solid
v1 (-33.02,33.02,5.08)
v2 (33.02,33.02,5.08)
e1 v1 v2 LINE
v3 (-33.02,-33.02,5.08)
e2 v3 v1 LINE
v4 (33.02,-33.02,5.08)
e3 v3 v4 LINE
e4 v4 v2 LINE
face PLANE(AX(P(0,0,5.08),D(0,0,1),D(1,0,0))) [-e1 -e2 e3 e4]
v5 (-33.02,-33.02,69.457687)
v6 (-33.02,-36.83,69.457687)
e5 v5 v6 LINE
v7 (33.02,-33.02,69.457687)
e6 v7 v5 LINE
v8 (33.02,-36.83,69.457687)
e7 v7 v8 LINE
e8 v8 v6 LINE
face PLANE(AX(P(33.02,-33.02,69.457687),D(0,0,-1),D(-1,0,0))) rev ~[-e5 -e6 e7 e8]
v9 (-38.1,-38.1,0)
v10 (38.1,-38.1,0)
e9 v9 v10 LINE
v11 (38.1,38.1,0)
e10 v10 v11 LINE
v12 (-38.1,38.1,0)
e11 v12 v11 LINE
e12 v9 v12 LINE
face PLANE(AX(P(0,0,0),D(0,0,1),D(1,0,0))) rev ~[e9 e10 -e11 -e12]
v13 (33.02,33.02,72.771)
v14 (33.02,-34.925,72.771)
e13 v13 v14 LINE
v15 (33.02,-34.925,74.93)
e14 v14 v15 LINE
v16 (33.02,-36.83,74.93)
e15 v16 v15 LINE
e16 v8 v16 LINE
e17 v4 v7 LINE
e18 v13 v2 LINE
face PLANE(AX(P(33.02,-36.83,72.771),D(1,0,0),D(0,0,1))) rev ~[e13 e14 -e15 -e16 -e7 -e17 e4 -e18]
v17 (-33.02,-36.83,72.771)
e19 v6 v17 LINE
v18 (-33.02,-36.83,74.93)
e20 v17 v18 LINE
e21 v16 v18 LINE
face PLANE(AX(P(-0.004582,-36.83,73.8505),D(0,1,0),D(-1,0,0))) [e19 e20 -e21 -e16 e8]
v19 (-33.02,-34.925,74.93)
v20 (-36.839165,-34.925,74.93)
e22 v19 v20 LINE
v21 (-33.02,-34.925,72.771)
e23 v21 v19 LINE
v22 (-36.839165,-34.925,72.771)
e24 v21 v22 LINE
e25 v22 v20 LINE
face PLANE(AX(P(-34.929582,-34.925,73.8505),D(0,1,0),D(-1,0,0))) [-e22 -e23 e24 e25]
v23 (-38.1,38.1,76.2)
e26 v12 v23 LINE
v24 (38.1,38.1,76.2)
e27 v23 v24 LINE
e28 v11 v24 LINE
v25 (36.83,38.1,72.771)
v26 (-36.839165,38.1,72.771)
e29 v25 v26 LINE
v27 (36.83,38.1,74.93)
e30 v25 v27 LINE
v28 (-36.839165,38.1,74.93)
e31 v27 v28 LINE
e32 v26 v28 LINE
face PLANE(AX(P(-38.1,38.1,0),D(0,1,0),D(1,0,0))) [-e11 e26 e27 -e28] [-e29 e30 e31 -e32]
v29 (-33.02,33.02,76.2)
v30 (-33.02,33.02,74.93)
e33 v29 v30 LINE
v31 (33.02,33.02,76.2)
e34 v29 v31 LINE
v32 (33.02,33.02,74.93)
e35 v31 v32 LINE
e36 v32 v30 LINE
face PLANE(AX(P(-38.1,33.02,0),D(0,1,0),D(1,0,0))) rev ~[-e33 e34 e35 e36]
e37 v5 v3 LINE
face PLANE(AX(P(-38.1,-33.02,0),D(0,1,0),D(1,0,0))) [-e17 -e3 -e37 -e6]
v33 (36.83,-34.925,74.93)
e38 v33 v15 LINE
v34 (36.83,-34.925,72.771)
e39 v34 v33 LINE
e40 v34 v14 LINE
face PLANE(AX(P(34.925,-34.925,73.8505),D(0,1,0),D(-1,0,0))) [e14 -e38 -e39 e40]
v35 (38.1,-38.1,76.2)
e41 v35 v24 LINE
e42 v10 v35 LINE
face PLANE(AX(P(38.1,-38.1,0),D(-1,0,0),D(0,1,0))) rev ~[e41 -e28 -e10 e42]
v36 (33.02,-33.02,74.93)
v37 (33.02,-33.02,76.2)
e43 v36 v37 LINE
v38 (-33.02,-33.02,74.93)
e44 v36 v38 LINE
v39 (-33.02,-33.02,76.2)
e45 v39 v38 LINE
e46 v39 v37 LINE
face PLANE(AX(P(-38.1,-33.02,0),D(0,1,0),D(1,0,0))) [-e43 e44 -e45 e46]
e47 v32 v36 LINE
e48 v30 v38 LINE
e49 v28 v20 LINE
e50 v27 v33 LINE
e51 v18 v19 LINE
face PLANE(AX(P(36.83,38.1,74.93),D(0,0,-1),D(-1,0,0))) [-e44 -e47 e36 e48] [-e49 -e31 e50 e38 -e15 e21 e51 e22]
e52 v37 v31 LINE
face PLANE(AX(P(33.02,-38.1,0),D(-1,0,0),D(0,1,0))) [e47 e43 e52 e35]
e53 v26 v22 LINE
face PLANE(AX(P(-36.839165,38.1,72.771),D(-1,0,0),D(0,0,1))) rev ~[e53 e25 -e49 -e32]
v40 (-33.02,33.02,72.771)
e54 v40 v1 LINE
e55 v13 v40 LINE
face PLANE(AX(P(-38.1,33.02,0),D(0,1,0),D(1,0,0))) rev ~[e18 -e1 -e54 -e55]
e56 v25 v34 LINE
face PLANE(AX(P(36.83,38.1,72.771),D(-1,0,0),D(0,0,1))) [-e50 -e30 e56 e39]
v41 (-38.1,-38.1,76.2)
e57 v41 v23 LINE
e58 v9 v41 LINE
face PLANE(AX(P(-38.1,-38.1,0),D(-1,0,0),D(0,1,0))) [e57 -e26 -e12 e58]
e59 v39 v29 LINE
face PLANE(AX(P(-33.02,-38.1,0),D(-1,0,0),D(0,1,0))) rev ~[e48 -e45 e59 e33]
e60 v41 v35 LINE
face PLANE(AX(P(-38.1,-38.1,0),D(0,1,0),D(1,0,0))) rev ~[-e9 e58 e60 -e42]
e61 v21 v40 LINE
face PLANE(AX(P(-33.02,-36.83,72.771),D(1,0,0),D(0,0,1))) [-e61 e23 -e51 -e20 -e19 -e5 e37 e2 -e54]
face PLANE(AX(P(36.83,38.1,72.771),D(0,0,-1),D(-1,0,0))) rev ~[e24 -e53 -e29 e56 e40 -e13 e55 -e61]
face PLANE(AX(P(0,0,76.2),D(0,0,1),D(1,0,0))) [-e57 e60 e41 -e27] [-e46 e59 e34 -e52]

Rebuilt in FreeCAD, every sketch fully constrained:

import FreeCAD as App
import Part
import Sketcher
from FreeCAD import Vector
Q = App.Units.Quantity


def faces_at(feature, points):
    """Names of the faces that lie closest to the given points."""
    faces = feature.Shape.Faces
    near = lambda p: min(range(len(faces)), key=lambda i: faces[i].distToShape(Part.Vertex(*p))[0])
    return sorted({f"Face{near(p) + 1}" for p in points})

doc = App.newDocument("Part")
params = doc.addObject("Spreadsheet::Sheet", "Params")
for row, (alias, value) in enumerate([
    ("sketch1_width", "3 in"),
    ("pad1_length", "3 in"),
    ("thickness_wall", "0.2 in"),
    ("sketch2_height", "0.085 in"),
    ("pocket1_length", "2.95 in"),
    ("sketch3_width", "2.6 in"),
    ("pocket2_length", "0.15 in"),
    ("sketch4_width", "0.15 in"),
    ("sketch4_height", "0.085 in"),
    ("pad2_length", "0.075 in"),
], start=1):
    params.set(f"A{row}", alias)
    params.set(f"B{row}", "=" + value)
    params.setAlias(f"B{row}", alias)

body = doc.addObject("PartDesign::Body", "Body")

sketch1 = doc.addObject("Sketcher::SketchObject", "Sketch")
body.addObject(sketch1)
sketch1.AttachmentSupport = (doc.XY_Plane, [""])
sketch1.MapMode = "FlatFace"
sketch1.addGeometry(Part.LineSegment(Vector(-38, 38, 0), Vector(-38, -38, 0)), False)
sketch1.addGeometry(Part.LineSegment(Vector(-38, -38, 0), Vector(38, -38, 0)), False)
sketch1.addGeometry(Part.LineSegment(Vector(38, -38, 0), Vector(38, 38, 0)), False)
sketch1.addGeometry(Part.LineSegment(Vector(38, 38, 0), Vector(-38, 38, 0)), False)
sketch1.addConstraint(Sketcher.Constraint("Coincident", 0, 2, 1, 1))
sketch1.addConstraint(Sketcher.Constraint("Coincident", 1, 2, 2, 1))
sketch1.addConstraint(Sketcher.Constraint("Coincident", 2, 2, 3, 1))
sketch1.addConstraint(Sketcher.Constraint("Coincident", 3, 2, 0, 1))
sketch1.addConstraint(Sketcher.Constraint("Vertical", 0))
sketch1.addConstraint(Sketcher.Constraint("Horizontal", 1))
sketch1.addConstraint(Sketcher.Constraint("Vertical", 2))
sketch1.addConstraint(Sketcher.Constraint("Horizontal", 3))
sketch1.addConstraint(Sketcher.Constraint("Symmetric", 0, 2, 2, 2, -1, 1))
sketch1.addConstraint(Sketcher.Constraint("Equal", 3, 0))
sketch1.addConstraint(Sketcher.Constraint("DistanceX", 1, 1, 1, 2, Q("3 in")))
sketch1.setExpression("Constraints[10]", "Params.sketch1_width")
pad1 = doc.addObject("PartDesign::Pad", "Pad")
body.addObject(pad1)
pad1.Profile = sketch1
pad1.setExpression("Length", "Params.pad1_length")
doc.recompute()

thickness = doc.addObject("PartDesign::Thickness", "Thickness")
body.addObject(thickness)
thickness.Base = (pad1, faces_at(pad1, [(0, 0, 76.2)]))
thickness.setExpression("Value", "Params.thickness_wall")
thickness.Reversed = True
thickness.Join = "Arc"

sketch2 = doc.addObject("Sketcher::SketchObject", "Sketch001")
body.addObject(sketch2)
sketch2.AttachmentSupport = (doc.XZ_Plane, [""])
sketch2.MapMode = "FlatFace"
sketch2.AttachmentOffset = App.Placement(Vector(0, 0, -1.5 * 25.4), App.Rotation())
sketch2.addGeometry(Part.LineSegment(Vector(36.8, 74.9, 0), Vector(36.8, 72.8, 0)), False)
sketch2.addGeometry(Part.LineSegment(Vector(36.8, 72.8, 0), Vector(-36.8, 72.8, 0)), False)
sketch2.addGeometry(Part.LineSegment(Vector(-36.8, 72.8, 0), Vector(-36.8, 74.9, 0)), False)
sketch2.addGeometry(Part.LineSegment(Vector(-36.8, 74.9, 0), Vector(36.8, 74.9, 0)), False)
sketch2.addConstraint(Sketcher.Constraint("Coincident", 0, 2, 1, 1))
sketch2.addConstraint(Sketcher.Constraint("Coincident", 1, 2, 2, 1))
sketch2.addConstraint(Sketcher.Constraint("Coincident", 2, 2, 3, 1))
sketch2.addConstraint(Sketcher.Constraint("Coincident", 3, 2, 0, 1))
sketch2.addConstraint(Sketcher.Constraint("Vertical", 0))
sketch2.addConstraint(Sketcher.Constraint("Horizontal", 1))
sketch2.addConstraint(Sketcher.Constraint("Vertical", 2))
sketch2.addConstraint(Sketcher.Constraint("Horizontal", 3))
sketch2.addConstraint(Sketcher.Constraint("DistanceY", 0, 2, 0, 1, Q("0.085 in")))
sketch2.addConstraint(Sketcher.Constraint("DistanceX", -1, 1, 0, 2, Q("1.45 in")))
sketch2.addConstraint(Sketcher.Constraint("DistanceY", -1, 1, 2, 2, Q("2.95 in")))
sketch2.addConstraint(Sketcher.Constraint("DistanceX", 1, 2, 1, 1, Q("73.669165 mm")))
sketch2.setExpression("Constraints[8]", "Params.sketch2_height")
pocket1 = doc.addObject("PartDesign::Pocket", "Pocket")
body.addObject(pocket1)
pocket1.Profile = sketch2
pocket1.setExpression("Length", "Params.pocket1_length")
pocket1.Reversed = True

sketch3 = doc.addObject("Sketcher::SketchObject", "Sketch002")
body.addObject(sketch3)
sketch3.AttachmentSupport = (doc.XZ_Plane, [""])
sketch3.MapMode = "FlatFace"
sketch3.AttachmentOffset = App.Placement(Vector(0, 0, 1.3 * 25.4), App.Rotation())
sketch3.addGeometry(Part.LineSegment(Vector(33, 75, 0), Vector(33, 69, 0)), False)
sketch3.addGeometry(Part.LineSegment(Vector(33, 69, 0), Vector(-33, 69, 0)), False)
sketch3.addGeometry(Part.LineSegment(Vector(-33, 69, 0), Vector(-33, 75, 0)), False)
sketch3.addGeometry(Part.LineSegment(Vector(-33, 75, 0), Vector(33, 75, 0)), False)
sketch3.addConstraint(Sketcher.Constraint("Coincident", 0, 2, 1, 1))
sketch3.addConstraint(Sketcher.Constraint("Coincident", 1, 2, 2, 1))
sketch3.addConstraint(Sketcher.Constraint("Coincident", 2, 2, 3, 1))
sketch3.addConstraint(Sketcher.Constraint("Coincident", 3, 2, 0, 1))
sketch3.addConstraint(Sketcher.Constraint("Vertical", 0))
sketch3.addConstraint(Sketcher.Constraint("Horizontal", 1))
sketch3.addConstraint(Sketcher.Constraint("Vertical", 2))
sketch3.addConstraint(Sketcher.Constraint("Horizontal", 3))
sketch3.addConstraint(Sketcher.Constraint("DistanceX", 1, 2, 1, 1, Q("2.6 in")))
sketch3.addConstraint(Sketcher.Constraint("DistanceX", -1, 1, 0, 2, Q("1.3 in")))
sketch3.addConstraint(Sketcher.Constraint("DistanceY", -1, 1, 2, 2, Q("74.8979 mm")))
sketch3.addConstraint(Sketcher.Constraint("DistanceY", 0, 2, 0, 1, Q("5.440213 mm")))
sketch3.setExpression("Constraints[8]", "Params.sketch3_width")
pocket2 = doc.addObject("PartDesign::Pocket", "Pocket001")
body.addObject(pocket2)
pocket2.Profile = sketch3
pocket2.setExpression("Length", "Params.pocket2_length")
pocket2.Reversed = True

sketch4 = doc.addObject("Sketcher::SketchObject", "Sketch003")
body.addObject(sketch4)
sketch4.AttachmentSupport = (doc.XZ_Plane, [""])
sketch4.MapMode = "FlatFace"
sketch4.AttachmentOffset = App.Placement(Vector(0, 0, 1.45 * 25.4), App.Rotation())
sketch4.addGeometry(Part.LineSegment(Vector(36.8, 74.9, 0), Vector(36.8, 72.8, 0)), False)
sketch4.addGeometry(Part.LineSegment(Vector(36.8, 72.8, 0), Vector(33, 72.8, 0)), False)
sketch4.addGeometry(Part.LineSegment(Vector(33, 72.8, 0), Vector(33, 74.9, 0)), False)
sketch4.addGeometry(Part.LineSegment(Vector(33, 74.9, 0), Vector(36.8, 74.9, 0)), False)
sketch4.addGeometry(Part.LineSegment(Vector(-33, 74.9, 0), Vector(-33, 72.8, 0)), False)
sketch4.addGeometry(Part.LineSegment(Vector(-33, 72.8, 0), Vector(-36.8, 72.8, 0)), False)
sketch4.addGeometry(Part.LineSegment(Vector(-36.8, 72.8, 0), Vector(-36.8, 74.9, 0)), False)
sketch4.addGeometry(Part.LineSegment(Vector(-36.8, 74.9, 0), Vector(-33, 74.9, 0)), False)
sketch4.addConstraint(Sketcher.Constraint("Coincident", 0, 2, 1, 1))
sketch4.addConstraint(Sketcher.Constraint("Coincident", 1, 2, 2, 1))
sketch4.addConstraint(Sketcher.Constraint("Coincident", 2, 2, 3, 1))
sketch4.addConstraint(Sketcher.Constraint("Coincident", 3, 2, 0, 1))
sketch4.addConstraint(Sketcher.Constraint("Coincident", 4, 2, 5, 1))
sketch4.addConstraint(Sketcher.Constraint("Coincident", 5, 2, 6, 1))
sketch4.addConstraint(Sketcher.Constraint("Coincident", 6, 2, 7, 1))
sketch4.addConstraint(Sketcher.Constraint("Coincident", 7, 2, 4, 1))
sketch4.addConstraint(Sketcher.Constraint("Vertical", 0))
sketch4.addConstraint(Sketcher.Constraint("Horizontal", 1))
sketch4.addConstraint(Sketcher.Constraint("Vertical", 2))
sketch4.addConstraint(Sketcher.Constraint("Horizontal", 3))
sketch4.addConstraint(Sketcher.Constraint("Vertical", 4))
sketch4.addConstraint(Sketcher.Constraint("Horizontal", 5))
sketch4.addConstraint(Sketcher.Constraint("Vertical", 6))
sketch4.addConstraint(Sketcher.Constraint("Horizontal", 7))
sketch4.addConstraint(Sketcher.Constraint("Symmetric", 1, 2, 4, 2, -2))
sketch4.addConstraint(Sketcher.Constraint("Horizontal", 3, 2, 6, 2))
sketch4.addConstraint(Sketcher.Constraint("DistanceX", 1, 2, 1, 1, Q("0.15 in")))
sketch4.addConstraint(Sketcher.Constraint("DistanceX", -1, 1, 1, 2, Q("1.3 in")))
sketch4.addConstraint(Sketcher.Constraint("DistanceY", 0, 2, 0, 1, Q("0.085 in")))
sketch4.addConstraint(Sketcher.Constraint("DistanceY", -1, 1, 2, 2, Q("2.95 in")))
sketch4.addConstraint(Sketcher.Constraint("DistanceX", 5, 2, 5, 1, Q("3.819165 mm")))
sketch4.setExpression("Constraints[18]", "Params.sketch4_width")
sketch4.setExpression("Constraints[20]", "Params.sketch4_height")
pad2 = doc.addObject("PartDesign::Pad", "Pad001")
body.addObject(pad2)
pad2.Profile = sketch4
pad2.setExpression("Length", "Params.pad2_length")
pad2.Reversed = True

doc.recompute()
